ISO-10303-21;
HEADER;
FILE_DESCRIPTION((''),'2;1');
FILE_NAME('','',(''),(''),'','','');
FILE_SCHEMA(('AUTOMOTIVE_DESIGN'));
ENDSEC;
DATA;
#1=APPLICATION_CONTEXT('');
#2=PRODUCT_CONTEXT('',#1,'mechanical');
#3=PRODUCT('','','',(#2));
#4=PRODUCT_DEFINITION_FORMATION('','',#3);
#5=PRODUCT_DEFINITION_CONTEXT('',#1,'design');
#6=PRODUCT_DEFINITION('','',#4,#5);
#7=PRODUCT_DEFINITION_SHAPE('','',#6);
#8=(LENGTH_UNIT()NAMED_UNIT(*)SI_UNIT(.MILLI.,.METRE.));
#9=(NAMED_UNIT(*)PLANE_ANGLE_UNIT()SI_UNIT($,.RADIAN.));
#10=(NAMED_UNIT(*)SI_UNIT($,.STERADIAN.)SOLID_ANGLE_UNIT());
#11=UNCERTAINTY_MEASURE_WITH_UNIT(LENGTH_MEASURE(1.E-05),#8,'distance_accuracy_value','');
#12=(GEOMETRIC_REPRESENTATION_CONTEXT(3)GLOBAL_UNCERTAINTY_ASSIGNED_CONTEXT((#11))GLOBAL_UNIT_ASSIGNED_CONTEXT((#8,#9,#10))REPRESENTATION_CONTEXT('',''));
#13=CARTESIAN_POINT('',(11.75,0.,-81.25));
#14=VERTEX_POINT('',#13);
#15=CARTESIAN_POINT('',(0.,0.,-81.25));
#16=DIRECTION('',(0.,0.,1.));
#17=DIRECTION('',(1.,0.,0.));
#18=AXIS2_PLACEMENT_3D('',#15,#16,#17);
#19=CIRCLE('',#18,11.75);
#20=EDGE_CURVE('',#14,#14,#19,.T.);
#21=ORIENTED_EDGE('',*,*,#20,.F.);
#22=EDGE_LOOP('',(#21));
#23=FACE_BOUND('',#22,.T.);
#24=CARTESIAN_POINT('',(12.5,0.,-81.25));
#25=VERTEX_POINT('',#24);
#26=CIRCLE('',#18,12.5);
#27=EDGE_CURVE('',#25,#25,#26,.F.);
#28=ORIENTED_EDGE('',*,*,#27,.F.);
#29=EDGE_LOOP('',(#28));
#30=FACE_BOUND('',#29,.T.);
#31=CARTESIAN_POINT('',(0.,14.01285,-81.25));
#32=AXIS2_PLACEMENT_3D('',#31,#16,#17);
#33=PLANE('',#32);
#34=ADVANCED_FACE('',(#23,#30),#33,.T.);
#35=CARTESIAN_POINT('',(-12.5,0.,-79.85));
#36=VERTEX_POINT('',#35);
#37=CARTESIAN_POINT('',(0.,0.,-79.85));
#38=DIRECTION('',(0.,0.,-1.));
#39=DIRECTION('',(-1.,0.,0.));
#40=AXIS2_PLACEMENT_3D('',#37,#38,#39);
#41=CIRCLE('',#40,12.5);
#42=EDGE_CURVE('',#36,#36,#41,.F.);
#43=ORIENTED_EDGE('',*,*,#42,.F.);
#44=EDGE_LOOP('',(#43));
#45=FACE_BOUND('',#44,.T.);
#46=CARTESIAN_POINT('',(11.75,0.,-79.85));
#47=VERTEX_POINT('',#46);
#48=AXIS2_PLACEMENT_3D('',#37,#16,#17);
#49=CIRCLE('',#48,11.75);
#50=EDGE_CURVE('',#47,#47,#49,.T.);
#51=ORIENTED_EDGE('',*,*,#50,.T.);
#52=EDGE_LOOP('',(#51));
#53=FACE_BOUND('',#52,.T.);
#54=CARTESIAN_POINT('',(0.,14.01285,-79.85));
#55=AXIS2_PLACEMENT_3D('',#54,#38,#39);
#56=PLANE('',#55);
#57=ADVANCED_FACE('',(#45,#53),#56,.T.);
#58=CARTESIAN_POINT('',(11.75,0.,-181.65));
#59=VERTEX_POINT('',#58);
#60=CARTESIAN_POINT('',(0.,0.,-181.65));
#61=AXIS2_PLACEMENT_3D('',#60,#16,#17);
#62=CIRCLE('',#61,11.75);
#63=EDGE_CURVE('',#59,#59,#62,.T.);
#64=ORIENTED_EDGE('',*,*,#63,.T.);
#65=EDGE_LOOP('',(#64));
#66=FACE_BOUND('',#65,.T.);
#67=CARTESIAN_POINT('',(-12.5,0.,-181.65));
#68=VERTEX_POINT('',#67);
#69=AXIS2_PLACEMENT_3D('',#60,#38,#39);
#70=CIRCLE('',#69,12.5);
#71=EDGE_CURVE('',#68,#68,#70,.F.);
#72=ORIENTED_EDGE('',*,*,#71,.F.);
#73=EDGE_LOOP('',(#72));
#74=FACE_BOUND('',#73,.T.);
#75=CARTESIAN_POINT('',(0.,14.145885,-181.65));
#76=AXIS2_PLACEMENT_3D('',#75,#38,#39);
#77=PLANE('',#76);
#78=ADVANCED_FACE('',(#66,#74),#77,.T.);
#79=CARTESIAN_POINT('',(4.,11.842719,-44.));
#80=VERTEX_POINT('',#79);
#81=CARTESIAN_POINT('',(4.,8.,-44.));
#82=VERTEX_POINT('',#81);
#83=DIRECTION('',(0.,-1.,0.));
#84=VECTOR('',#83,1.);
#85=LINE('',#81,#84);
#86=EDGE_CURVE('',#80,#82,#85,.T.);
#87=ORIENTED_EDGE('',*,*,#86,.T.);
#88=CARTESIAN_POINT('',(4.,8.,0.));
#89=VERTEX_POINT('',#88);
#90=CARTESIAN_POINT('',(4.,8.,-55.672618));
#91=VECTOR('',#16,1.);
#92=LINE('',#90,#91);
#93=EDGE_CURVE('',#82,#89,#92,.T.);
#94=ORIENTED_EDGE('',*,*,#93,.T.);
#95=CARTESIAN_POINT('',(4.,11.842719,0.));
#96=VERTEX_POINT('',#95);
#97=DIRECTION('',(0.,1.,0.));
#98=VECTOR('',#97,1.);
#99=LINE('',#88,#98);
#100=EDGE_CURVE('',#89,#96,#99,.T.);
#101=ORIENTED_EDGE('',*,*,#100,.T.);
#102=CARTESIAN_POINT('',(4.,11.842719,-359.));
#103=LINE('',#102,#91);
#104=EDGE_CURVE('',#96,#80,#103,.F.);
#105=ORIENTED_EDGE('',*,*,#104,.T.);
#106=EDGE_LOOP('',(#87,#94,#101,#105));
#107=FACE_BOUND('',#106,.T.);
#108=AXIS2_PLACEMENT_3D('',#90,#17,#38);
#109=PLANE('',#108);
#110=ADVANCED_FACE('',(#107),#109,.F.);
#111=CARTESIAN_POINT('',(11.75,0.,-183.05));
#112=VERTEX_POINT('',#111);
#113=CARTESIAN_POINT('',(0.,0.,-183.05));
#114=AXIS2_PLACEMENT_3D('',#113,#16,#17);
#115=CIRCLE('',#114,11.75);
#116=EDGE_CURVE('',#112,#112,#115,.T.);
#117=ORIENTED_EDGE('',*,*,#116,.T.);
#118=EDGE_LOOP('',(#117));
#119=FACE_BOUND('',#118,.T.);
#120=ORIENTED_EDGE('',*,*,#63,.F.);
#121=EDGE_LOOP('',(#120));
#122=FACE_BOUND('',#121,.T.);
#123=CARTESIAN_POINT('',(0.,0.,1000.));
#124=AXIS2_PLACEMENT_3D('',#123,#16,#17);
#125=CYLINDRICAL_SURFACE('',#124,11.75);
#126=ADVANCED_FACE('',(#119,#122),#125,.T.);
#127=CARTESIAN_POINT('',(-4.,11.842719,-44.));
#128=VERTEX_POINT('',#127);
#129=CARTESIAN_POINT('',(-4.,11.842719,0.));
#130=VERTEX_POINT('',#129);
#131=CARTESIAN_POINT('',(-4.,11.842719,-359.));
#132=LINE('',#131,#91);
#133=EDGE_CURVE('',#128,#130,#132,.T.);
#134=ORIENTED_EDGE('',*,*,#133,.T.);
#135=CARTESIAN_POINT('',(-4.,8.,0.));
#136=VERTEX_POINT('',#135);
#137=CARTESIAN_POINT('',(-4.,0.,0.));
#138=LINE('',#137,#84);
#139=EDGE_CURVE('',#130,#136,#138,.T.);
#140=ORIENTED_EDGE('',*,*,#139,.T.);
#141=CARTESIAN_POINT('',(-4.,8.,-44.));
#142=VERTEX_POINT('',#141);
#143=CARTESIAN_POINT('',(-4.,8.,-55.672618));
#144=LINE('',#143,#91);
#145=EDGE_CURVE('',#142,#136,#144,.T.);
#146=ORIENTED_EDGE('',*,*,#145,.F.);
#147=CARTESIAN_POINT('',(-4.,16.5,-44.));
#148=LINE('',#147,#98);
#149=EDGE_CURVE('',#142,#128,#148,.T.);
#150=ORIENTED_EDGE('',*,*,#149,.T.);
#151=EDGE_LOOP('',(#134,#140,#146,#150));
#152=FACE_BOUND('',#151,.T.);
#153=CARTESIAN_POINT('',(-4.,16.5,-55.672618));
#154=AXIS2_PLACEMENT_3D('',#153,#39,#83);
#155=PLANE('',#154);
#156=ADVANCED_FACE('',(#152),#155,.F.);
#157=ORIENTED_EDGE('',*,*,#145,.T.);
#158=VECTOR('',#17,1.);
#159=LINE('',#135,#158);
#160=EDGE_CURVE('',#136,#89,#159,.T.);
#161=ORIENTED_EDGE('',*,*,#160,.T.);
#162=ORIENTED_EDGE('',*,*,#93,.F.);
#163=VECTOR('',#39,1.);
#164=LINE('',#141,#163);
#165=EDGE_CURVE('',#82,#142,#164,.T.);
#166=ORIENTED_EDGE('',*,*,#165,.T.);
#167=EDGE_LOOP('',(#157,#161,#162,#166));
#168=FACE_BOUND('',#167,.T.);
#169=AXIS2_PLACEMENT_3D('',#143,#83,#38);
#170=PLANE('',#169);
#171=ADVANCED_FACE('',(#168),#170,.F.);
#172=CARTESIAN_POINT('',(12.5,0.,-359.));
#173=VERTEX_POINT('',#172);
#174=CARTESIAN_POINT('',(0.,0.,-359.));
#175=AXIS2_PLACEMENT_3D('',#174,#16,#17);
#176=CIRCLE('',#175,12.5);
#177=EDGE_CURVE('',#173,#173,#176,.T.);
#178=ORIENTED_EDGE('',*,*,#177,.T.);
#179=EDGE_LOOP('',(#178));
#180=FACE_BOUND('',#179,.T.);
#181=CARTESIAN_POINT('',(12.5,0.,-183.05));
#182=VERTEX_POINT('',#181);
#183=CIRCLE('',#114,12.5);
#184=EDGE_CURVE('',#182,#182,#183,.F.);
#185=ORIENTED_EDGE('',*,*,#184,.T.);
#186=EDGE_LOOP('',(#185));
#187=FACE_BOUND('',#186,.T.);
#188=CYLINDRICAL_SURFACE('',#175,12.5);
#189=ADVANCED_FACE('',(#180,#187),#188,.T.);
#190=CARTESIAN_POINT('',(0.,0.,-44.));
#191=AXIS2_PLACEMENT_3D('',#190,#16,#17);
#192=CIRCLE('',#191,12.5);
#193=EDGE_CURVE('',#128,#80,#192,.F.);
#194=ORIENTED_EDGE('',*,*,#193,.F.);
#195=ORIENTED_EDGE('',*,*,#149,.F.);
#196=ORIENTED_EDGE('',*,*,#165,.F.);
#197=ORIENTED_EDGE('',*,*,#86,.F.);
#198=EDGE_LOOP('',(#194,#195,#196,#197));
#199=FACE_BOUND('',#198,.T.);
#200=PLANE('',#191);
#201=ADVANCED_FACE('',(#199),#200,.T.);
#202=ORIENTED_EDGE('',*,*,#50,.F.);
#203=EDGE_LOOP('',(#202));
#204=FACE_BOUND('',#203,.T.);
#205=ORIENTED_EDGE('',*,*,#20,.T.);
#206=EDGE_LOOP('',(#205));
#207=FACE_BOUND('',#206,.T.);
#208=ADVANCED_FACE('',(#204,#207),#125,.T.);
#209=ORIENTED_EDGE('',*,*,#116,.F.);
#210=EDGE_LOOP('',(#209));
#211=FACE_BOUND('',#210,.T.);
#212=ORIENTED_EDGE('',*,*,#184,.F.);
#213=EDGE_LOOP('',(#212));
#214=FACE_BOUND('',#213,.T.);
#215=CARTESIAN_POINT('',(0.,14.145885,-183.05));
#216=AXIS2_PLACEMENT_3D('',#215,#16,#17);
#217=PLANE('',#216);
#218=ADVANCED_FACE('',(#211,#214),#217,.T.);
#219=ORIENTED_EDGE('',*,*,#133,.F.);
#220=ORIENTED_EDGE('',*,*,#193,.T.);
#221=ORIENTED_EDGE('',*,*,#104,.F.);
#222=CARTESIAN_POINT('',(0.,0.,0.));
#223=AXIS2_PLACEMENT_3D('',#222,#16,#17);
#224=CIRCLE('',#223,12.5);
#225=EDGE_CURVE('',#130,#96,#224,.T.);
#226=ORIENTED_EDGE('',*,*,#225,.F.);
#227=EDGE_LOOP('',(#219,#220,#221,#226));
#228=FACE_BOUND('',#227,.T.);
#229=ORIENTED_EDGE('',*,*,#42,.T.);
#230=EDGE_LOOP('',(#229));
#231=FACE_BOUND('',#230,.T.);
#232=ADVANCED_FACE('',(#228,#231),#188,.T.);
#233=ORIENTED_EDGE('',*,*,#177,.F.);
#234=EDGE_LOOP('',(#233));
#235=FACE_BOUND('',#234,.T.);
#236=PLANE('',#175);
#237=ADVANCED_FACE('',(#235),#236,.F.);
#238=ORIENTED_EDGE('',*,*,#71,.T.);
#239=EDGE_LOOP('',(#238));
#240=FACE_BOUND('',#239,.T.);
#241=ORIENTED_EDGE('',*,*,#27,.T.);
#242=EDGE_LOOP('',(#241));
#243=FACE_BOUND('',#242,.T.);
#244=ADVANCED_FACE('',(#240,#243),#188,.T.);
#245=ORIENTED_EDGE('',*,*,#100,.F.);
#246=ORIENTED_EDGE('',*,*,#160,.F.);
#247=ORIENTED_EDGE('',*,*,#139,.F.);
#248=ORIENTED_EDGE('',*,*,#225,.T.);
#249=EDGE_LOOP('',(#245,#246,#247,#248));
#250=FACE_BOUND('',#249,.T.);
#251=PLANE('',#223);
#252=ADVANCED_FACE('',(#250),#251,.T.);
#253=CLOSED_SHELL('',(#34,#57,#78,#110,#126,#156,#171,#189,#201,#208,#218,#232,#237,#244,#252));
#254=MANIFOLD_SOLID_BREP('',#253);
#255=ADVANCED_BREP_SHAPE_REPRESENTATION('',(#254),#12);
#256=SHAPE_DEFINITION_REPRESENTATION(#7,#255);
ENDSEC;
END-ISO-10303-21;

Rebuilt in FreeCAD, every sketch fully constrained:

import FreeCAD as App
import Part
import Sketcher
from FreeCAD import Vector


def add_polygon(sketch, points):
    """Adds a closed chain of lines whose ends are joined by coincident constraints."""
    first, n = sketch.GeometryCount, len(points)
    for a, b in zip(points, points[1:] + points[:1]):
        sketch.addGeometry(Part.LineSegment(App.Vector(*a, 0), App.Vector(*b, 0)), False)
    for i in range(n):
        sketch.addConstraint(Sketcher.Constraint("Coincident", first + i, 2, first + (i + 1) % n, 1))

doc = App.newDocument("Part")
body = doc.addObject("PartDesign::Body", "Body")

sketch1 = body.newObject("Sketcher::SketchObject", "Sketch")
sketch1.AttachmentSupport = (doc.getObject("XY_Plane"), [""])
sketch1.MapMode = "FlatFace"
sketch1.addGeometry(Part.Circle(Vector(0, 0, 0), Vector(0, 0, 1), 12), False)
sketch1.addConstraint(Sketcher.Constraint("Coincident", 0, 3, -1, 1))
sketch1.addConstraint(Sketcher.Constraint("Diameter", 0, 25.0))
pad1 = body.newObject("PartDesign::Pad", "Pad")
pad1.Profile = sketch1
pad1.Length = 359
pad1.Reversed = True

sketch2 = body.newObject("Sketcher::SketchObject", "Sketch001")
sketch2.AttachmentSupport = (doc.getObject("XY_Plane"), [""])
sketch2.MapMode = "FlatFace"
sketch2.AttachmentOffset = App.Placement(Vector(0, 0, -44), App.Rotation())
add_polygon(sketch2, [(-4, 16), (-4, 8), (4, 8), (4, 16)])
sketch2.addConstraint(Sketcher.Constraint("Vertical", 0))
sketch2.addConstraint(Sketcher.Constraint("Horizontal", 1))
sketch2.addConstraint(Sketcher.Constraint("Vertical", 2))
sketch2.addConstraint(Sketcher.Constraint("Horizontal", 3))
sketch2.addConstraint(Sketcher.Constraint("DistanceX", 1, 1, 1, 2, 8.0))
sketch2.addConstraint(Sketcher.Constraint("DistanceY", 0, 2, 0, 1, 8.5))
sketch2.addConstraint(Sketcher.Constraint("DistanceX", 0, 2, -1, 1, 4.0))
sketch2.addConstraint(Sketcher.Constraint("DistanceY", -1, 1, 0, 2, 8.0))
pocket1 = body.newObject("PartDesign::Pocket", "Pocket")
pocket1.Profile = sketch2
pocket1.Length = 44
pocket1.Reversed = True

sketch3 = body.newObject("Sketcher::SketchObject", "Sketch002")
sketch3.AttachmentSupport = (doc.getObject("YZ_Plane"), [""])
sketch3.MapMode = "FlatFace"
add_polygon(sketch3, [(14.1, -181.7), (11.8, -181.7), (11.8, -183.1), (14.1, -183.1)])
add_polygon(sketch3, [(14, -79.8), (11.7, -79.8), (11.7, -81.2), (14, -81.2)])
sketch3.addConstraint(Sketcher.Constraint("Horizontal", 0))
sketch3.addConstraint(Sketcher.Constraint("Vertical", 1))
sketch3.addConstraint(Sketcher.Constraint("Horizontal", 2))
sketch3.addConstraint(Sketcher.Constraint("Vertical", 3))
sketch3.addConstraint(Sketcher.Constraint("Horizontal", 4))
sketch3.addConstraint(Sketcher.Constraint("Vertical", 5))
sketch3.addConstraint(Sketcher.Constraint("Horizontal", 6))
sketch3.addConstraint(Sketcher.Constraint("Vertical", 7))
sketch3.addConstraint(Sketcher.Constraint("Vertical", 1, 2, 4, 2))
sketch3.addConstraint(Sketcher.Constraint("Equal", 3, 5))
sketch3.addConstraint(Sketcher.Constraint("DistanceY", 1, 2, 1, 1, 1.4))
sketch3.addConstraint(Sketcher.Constraint("DistanceY", 0, 2, 4, 2, 101.8))
sketch3.addConstraint(Sketcher.Constraint("DistanceX", -1, 1, 0, 2, 11.75))
sketch3.addConstraint(Sketcher.Constraint("DistanceY", 0, 2, -1, 1, 181.65))
sketch3.addConstraint(Sketcher.Constraint("DistanceX", 4, 2, 4, 1, 2.26285))
sketch3.addConstraint(Sketcher.Constraint("DistanceX", 0, 2, 0, 1, 2.395885))
groove = body.newObject("PartDesign::Groove", "Groove")
groove.Profile = sketch3
groove.ReferenceAxis = (sketch3, ["V_Axis"])
groove.Angle = 360

doc.recompute()
